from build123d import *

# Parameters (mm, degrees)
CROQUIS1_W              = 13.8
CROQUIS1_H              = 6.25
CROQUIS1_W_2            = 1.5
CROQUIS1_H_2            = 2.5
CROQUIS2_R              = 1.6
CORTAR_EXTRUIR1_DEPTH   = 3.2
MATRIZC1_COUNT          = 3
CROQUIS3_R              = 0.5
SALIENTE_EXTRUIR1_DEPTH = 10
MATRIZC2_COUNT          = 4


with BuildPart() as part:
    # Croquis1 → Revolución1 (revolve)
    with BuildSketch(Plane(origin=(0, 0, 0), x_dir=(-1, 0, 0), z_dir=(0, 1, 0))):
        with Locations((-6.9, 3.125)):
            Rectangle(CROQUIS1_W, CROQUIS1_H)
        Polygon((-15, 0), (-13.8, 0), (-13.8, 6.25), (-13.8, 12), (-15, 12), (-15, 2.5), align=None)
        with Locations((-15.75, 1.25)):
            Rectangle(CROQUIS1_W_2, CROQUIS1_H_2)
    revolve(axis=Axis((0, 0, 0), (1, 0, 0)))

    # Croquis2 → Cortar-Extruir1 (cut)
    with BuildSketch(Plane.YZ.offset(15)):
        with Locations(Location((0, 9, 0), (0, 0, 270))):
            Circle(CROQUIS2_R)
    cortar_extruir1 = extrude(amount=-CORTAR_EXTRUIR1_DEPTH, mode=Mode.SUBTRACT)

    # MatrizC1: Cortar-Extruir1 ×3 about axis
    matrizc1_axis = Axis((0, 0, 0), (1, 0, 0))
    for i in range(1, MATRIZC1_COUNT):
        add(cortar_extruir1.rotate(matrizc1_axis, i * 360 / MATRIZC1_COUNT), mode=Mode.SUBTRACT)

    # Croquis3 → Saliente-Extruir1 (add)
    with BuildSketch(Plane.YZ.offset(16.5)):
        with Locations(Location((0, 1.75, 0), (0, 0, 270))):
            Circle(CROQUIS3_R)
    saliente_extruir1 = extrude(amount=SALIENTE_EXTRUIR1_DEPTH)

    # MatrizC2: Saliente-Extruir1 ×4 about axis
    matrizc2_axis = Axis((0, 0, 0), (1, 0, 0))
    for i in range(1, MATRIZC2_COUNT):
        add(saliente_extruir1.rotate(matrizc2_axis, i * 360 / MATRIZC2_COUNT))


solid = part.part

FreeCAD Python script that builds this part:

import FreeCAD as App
import Part
import Sketcher


def add_polygon(sketch, points):
    """Adds a closed chain of lines whose ends are joined by coincident constraints."""
    first, n = sketch.GeometryCount, len(points)
    for a, b in zip(points, points[1:] + points[:1]):
        sketch.addGeometry(Part.LineSegment(App.Vector(*a, 0), App.Vector(*b, 0)), False)
    for i in range(n):
        sketch.addConstraint(Sketcher.Constraint("Coincident", first + i, 2, first + (i + 1) % n, 1))

doc = App.newDocument("Part")
body = doc.addObject("PartDesign::Body", "Body")

sketch1 = body.newObject("Sketcher::SketchObject", "Sketch")
sketch1.AttachmentSupport = (doc.getObject("XZ_Plane"), [""])
sketch1.MapMode = "FlatFace"
add_polygon(sketch1, [(0, 0), (0, 6.25), (13.8, 6.25), (13.8, 12), (15, 12), (15, 2.5), (16.5, 2.5), (16.5, 0)])
sketch1.addConstraint(Sketcher.Constraint("Vertical", 0))
sketch1.addConstraint(Sketcher.Constraint("Horizontal", 1))
sketch1.addConstraint(Sketcher.Constraint("Vertical", 2))
sketch1.addConstraint(Sketcher.Constraint("Horizontal", 3))
sketch1.addConstraint(Sketcher.Constraint("Vertical", 4))
sketch1.addConstraint(Sketcher.Constraint("Horizontal", 5))
sketch1.addConstraint(Sketcher.Constraint("Vertical", 6))
sketch1.addConstraint(Sketcher.Constraint("Horizontal", 7))
sketch1.addConstraint(Sketcher.Constraint("Coincident", 7, 2, -1, 1))
sketch1.addConstraint(Sketcher.Constraint("DistanceX", 1, 1, 1, 2, 13.8))
sketch1.addConstraint(Sketcher.Constraint("DistanceX", 3, 1, 3, 2, 1.2))
sketch1.addConstraint(Sketcher.Constraint("DistanceX", 5, 1, 5, 2, 1.5))
sketch1.addConstraint(Sketcher.Constraint("DistanceY", 4, 2, 4, 1, 9.5))
sketch1.addConstraint(Sketcher.Constraint("DistanceY", 6, 2, 6, 1, 2.5))
sketch1.addConstraint(Sketcher.Constraint("DistanceY", 0, 1, 0, 2, 6.25))
revolution = body.newObject("PartDesign::Revolution", "Revolution")
revolution.Profile = sketch1
revolution.ReferenceAxis = (sketch1, ["H_Axis"])
revolution.Angle = 360

sketch2 = body.newObject("Sketcher::SketchObject", "Sketch001")
sketch2.AttachmentSupport = (doc.getObject("YZ_Plane"), [""])
sketch2.MapMode = "FlatFace"
sketch2.AttachmentOffset = App.Placement(App.Vector(0, 0, 15), App.Rotation())
sketch2.addGeometry(Part.Circle(App.Vector(0, 9, 0), App.Vector(0, 0, 1), 1.6), False)
sketch2.addConstraint(Sketcher.Constraint("PointOnObject", 0, 3, -2))
sketch2.addConstraint(Sketcher.Constraint("Diameter", 0, 3.2))
sketch2.addConstraint(Sketcher.Constraint("DistanceY", -1, 1, 0, 3, 9.0))
pocket1 = body.newObject("PartDesign::Pocket", "Pocket")
pocket1.Profile = sketch2
pocket1.Length = 3.2
doc.recompute()

polarpattern = body.newObject("PartDesign::PolarPattern", "PolarPattern")
polarpattern.Originals = [pocket1]
polarpattern.Axis = (doc.getObject("X_Axis"), [""])
polarpattern.Angle = 360
polarpattern.Occurrences = 3
body.Tip = polarpattern

sketch3 = body.newObject("Sketcher::SketchObject", "Sketch002")
sketch3.AttachmentSupport = (doc.getObject("YZ_Plane"), [""])
sketch3.MapMode = "FlatFace"
sketch3.AttachmentOffset = App.Placement(App.Vector(0, 0, 16.5), App.Rotation())
sketch3.addGeometry(Part.Circle(App.Vector(0, 1.75, 0), App.Vector(0, 0, 1), 0.5), False)
sketch3.addConstraint(Sketcher.Constraint("PointOnObject", 0, 3, -2))
sketch3.addConstraint(Sketcher.Constraint("Diameter", 0, 1.0))
sketch3.addConstraint(Sketcher.Constraint("DistanceY", -1, 1, 0, 3, 1.75))
pad1 = body.newObject("PartDesign::Pad", "Pad")
pad1.Profile = sketch3
pad1.Length = 10
doc.recompute()

polarpattern2 = body.newObject("PartDesign::PolarPattern", "PolarPattern001")
polarpattern2.Originals = [pad1]
polarpattern2.Axis = (doc.getObject("X_Axis"), [""])
polarpattern2.Angle = 360
polarpattern2.Occurrences = 4
body.Tip = polarpattern2

doc.recompute()
